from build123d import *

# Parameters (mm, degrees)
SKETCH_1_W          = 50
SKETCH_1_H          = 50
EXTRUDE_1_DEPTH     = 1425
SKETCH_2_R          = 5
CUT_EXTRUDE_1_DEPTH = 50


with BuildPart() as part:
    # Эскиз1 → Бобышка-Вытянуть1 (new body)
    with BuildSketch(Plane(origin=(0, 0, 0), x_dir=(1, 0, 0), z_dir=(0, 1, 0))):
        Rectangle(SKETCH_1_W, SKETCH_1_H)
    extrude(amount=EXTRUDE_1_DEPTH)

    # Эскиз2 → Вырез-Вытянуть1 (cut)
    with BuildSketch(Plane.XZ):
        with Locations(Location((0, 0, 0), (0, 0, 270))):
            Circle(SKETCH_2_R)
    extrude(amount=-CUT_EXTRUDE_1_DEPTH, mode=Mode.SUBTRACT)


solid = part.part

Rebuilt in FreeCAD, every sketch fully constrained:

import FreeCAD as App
import Part
import Sketcher


def add_polygon(sketch, points):
    """Adds a closed chain of lines whose ends are joined by coincident constraints."""
    first, n = sketch.GeometryCount, len(points)
    for a, b in zip(points, points[1:] + points[:1]):
        sketch.addGeometry(Part.LineSegment(App.Vector(*a, 0), App.Vector(*b, 0)), False)
    for i in range(n):
        sketch.addConstraint(Sketcher.Constraint("Coincident", first + i, 2, first + (i + 1) % n, 1))

doc = App.newDocument("Part")
body = doc.addObject("PartDesign::Body", "Body")

# Sketch on XZ plane
sketch1 = body.newObject("Sketcher::SketchObject", "Sketch")
sketch1.AttachmentSupport = (doc.getObject("XZ_Plane"), [""])
sketch1.MapMode = "FlatFace"
add_polygon(sketch1, [(-25, -25), (-25, 25), (25, 25), (25, -25)])  # lines 0-3
sketch1.addConstraint(Sketcher.Constraint("Vertical", 0))
sketch1.addConstraint(Sketcher.Constraint("Horizontal", 1))
sketch1.addConstraint(Sketcher.Constraint("Vertical", 2))
sketch1.addConstraint(Sketcher.Constraint("Horizontal", 3))
sketch1.addConstraint(Sketcher.Constraint("Symmetric", 0, 2, 2, 2, -1, 1))
sketch1.addConstraint(Sketcher.Constraint("Equal", 3, 0))
sketch1.addConstraint(Sketcher.Constraint("DistanceX", 1, 1, 1, 2, 50.0))
pad1 = body.newObject("PartDesign::Pad", "Pad")
pad1.Profile = sketch1
pad1.Length = 1425
pad1.Reversed = True

# Sketch on XZ plane
sketch2 = body.newObject("Sketcher::SketchObject", "Sketch001")
sketch2.AttachmentSupport = (doc.getObject("XZ_Plane"), [""])
sketch2.MapMode = "FlatFace"
sketch2.addGeometry(Part.Circle(App.Vector(0, 0, 0), App.Vector(0, 0, 1), 5), False)
sketch2.addConstraint(Sketcher.Constraint("Coincident", 0, 3, -1, 1))
sketch2.addConstraint(Sketcher.Constraint("Diameter", 0, 10.0))
pocket1 = body.newObject("PartDesign::Pocket", "Pocket")
pocket1.Profile = sketch2
pocket1.Length = 50

doc.recompute()
